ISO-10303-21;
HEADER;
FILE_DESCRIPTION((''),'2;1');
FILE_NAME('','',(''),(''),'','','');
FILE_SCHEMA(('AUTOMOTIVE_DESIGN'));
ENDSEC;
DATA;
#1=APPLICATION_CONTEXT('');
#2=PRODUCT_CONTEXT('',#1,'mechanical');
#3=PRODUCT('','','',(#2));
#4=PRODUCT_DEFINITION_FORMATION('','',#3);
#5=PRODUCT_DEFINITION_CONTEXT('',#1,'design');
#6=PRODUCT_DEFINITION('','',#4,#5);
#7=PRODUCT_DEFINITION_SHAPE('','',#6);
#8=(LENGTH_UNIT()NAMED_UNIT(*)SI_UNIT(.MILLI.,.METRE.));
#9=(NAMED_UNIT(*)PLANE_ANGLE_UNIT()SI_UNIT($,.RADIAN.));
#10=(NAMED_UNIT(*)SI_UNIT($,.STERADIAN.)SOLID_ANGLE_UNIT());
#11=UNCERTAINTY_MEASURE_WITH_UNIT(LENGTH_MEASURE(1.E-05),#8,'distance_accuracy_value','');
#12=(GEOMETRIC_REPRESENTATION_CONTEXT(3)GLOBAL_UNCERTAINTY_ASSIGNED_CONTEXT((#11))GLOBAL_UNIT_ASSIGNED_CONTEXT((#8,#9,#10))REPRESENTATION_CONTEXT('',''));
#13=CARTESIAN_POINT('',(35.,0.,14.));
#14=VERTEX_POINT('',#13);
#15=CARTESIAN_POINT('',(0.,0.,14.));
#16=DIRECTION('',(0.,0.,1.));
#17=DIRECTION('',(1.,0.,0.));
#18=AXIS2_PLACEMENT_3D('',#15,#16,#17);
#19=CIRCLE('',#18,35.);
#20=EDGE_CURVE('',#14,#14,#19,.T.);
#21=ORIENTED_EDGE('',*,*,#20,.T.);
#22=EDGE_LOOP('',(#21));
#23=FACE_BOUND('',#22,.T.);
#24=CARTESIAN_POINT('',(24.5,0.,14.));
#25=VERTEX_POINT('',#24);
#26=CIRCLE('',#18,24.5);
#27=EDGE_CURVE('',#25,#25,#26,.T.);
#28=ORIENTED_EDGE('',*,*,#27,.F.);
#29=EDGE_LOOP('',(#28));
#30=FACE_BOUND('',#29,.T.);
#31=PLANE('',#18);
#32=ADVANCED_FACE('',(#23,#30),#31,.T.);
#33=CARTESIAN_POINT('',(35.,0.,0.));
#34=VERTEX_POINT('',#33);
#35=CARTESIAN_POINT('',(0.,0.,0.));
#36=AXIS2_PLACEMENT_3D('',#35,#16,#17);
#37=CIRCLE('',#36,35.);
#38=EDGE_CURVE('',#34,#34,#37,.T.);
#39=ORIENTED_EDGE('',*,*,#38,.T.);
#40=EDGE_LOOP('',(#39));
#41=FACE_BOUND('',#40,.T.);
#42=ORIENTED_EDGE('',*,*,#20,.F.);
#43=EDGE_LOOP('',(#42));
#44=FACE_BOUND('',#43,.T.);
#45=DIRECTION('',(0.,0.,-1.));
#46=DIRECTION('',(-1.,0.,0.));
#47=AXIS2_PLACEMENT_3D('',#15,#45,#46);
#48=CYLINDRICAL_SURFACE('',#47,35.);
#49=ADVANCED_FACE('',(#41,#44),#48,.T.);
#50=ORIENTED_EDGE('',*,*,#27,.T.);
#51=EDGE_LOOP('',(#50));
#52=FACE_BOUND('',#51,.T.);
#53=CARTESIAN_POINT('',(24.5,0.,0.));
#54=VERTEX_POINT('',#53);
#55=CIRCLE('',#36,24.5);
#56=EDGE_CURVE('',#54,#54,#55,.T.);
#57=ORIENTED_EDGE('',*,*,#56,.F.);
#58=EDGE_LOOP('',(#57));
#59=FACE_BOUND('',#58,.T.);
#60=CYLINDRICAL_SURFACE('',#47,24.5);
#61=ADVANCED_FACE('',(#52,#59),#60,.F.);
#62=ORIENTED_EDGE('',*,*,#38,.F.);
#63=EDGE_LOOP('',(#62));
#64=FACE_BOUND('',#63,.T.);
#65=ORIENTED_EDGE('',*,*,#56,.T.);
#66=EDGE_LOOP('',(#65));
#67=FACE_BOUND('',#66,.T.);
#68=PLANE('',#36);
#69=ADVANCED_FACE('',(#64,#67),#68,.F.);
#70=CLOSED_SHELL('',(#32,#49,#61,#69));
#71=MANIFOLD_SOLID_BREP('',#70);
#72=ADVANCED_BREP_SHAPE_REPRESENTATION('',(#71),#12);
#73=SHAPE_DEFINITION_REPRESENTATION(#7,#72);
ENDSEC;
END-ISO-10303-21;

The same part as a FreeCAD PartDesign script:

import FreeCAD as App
import Part
import Sketcher

V = App.Vector

doc = App.newDocument("Part")
body = doc.addObject("PartDesign::Body", "Body")

# Sketch on XY plane
sketch1 = doc.addObject("Sketcher::SketchObject", "Sketch")
body.addObject(sketch1)
sketch1.AttachmentSupport = (doc.XY_Plane, [""])
sketch1.MapMode = "FlatFace"
sketch1.addGeometry(Part.Circle(V(0, 0, 0), V(0, 0, 1), 35), False)
sketch1.addConstraint([
    Sketcher.Constraint("Coincident", 0, 3, -1, 1),
    Sketcher.Constraint("Diameter", 0, 70.0),
])
pad1 = doc.addObject("PartDesign::Pad", "Pad")
body.addObject(pad1)
pad1.Profile = sketch1
pad1.Length = 14

# Sketch on XY plane
sketch2 = doc.addObject("Sketcher::SketchObject", "Sketch001")
body.addObject(sketch2)
sketch2.AttachmentSupport = (doc.XY_Plane, [""])
sketch2.MapMode = "FlatFace"
sketch2.addGeometry(Part.Circle(V(0, 0, 0), V(0, 0, 1), 24), False)
sketch2.addConstraint([
    Sketcher.Constraint("Coincident", 0, 3, -1, 1),
    Sketcher.Constraint("Diameter", 0, 49.0),
])
pocket1 = doc.addObject("PartDesign::Pocket", "Pocket")
body.addObject(pocket1)
pocket1.Profile = sketch2
pocket1.Length = 14
pocket1.Reversed = True

doc.recompute()
